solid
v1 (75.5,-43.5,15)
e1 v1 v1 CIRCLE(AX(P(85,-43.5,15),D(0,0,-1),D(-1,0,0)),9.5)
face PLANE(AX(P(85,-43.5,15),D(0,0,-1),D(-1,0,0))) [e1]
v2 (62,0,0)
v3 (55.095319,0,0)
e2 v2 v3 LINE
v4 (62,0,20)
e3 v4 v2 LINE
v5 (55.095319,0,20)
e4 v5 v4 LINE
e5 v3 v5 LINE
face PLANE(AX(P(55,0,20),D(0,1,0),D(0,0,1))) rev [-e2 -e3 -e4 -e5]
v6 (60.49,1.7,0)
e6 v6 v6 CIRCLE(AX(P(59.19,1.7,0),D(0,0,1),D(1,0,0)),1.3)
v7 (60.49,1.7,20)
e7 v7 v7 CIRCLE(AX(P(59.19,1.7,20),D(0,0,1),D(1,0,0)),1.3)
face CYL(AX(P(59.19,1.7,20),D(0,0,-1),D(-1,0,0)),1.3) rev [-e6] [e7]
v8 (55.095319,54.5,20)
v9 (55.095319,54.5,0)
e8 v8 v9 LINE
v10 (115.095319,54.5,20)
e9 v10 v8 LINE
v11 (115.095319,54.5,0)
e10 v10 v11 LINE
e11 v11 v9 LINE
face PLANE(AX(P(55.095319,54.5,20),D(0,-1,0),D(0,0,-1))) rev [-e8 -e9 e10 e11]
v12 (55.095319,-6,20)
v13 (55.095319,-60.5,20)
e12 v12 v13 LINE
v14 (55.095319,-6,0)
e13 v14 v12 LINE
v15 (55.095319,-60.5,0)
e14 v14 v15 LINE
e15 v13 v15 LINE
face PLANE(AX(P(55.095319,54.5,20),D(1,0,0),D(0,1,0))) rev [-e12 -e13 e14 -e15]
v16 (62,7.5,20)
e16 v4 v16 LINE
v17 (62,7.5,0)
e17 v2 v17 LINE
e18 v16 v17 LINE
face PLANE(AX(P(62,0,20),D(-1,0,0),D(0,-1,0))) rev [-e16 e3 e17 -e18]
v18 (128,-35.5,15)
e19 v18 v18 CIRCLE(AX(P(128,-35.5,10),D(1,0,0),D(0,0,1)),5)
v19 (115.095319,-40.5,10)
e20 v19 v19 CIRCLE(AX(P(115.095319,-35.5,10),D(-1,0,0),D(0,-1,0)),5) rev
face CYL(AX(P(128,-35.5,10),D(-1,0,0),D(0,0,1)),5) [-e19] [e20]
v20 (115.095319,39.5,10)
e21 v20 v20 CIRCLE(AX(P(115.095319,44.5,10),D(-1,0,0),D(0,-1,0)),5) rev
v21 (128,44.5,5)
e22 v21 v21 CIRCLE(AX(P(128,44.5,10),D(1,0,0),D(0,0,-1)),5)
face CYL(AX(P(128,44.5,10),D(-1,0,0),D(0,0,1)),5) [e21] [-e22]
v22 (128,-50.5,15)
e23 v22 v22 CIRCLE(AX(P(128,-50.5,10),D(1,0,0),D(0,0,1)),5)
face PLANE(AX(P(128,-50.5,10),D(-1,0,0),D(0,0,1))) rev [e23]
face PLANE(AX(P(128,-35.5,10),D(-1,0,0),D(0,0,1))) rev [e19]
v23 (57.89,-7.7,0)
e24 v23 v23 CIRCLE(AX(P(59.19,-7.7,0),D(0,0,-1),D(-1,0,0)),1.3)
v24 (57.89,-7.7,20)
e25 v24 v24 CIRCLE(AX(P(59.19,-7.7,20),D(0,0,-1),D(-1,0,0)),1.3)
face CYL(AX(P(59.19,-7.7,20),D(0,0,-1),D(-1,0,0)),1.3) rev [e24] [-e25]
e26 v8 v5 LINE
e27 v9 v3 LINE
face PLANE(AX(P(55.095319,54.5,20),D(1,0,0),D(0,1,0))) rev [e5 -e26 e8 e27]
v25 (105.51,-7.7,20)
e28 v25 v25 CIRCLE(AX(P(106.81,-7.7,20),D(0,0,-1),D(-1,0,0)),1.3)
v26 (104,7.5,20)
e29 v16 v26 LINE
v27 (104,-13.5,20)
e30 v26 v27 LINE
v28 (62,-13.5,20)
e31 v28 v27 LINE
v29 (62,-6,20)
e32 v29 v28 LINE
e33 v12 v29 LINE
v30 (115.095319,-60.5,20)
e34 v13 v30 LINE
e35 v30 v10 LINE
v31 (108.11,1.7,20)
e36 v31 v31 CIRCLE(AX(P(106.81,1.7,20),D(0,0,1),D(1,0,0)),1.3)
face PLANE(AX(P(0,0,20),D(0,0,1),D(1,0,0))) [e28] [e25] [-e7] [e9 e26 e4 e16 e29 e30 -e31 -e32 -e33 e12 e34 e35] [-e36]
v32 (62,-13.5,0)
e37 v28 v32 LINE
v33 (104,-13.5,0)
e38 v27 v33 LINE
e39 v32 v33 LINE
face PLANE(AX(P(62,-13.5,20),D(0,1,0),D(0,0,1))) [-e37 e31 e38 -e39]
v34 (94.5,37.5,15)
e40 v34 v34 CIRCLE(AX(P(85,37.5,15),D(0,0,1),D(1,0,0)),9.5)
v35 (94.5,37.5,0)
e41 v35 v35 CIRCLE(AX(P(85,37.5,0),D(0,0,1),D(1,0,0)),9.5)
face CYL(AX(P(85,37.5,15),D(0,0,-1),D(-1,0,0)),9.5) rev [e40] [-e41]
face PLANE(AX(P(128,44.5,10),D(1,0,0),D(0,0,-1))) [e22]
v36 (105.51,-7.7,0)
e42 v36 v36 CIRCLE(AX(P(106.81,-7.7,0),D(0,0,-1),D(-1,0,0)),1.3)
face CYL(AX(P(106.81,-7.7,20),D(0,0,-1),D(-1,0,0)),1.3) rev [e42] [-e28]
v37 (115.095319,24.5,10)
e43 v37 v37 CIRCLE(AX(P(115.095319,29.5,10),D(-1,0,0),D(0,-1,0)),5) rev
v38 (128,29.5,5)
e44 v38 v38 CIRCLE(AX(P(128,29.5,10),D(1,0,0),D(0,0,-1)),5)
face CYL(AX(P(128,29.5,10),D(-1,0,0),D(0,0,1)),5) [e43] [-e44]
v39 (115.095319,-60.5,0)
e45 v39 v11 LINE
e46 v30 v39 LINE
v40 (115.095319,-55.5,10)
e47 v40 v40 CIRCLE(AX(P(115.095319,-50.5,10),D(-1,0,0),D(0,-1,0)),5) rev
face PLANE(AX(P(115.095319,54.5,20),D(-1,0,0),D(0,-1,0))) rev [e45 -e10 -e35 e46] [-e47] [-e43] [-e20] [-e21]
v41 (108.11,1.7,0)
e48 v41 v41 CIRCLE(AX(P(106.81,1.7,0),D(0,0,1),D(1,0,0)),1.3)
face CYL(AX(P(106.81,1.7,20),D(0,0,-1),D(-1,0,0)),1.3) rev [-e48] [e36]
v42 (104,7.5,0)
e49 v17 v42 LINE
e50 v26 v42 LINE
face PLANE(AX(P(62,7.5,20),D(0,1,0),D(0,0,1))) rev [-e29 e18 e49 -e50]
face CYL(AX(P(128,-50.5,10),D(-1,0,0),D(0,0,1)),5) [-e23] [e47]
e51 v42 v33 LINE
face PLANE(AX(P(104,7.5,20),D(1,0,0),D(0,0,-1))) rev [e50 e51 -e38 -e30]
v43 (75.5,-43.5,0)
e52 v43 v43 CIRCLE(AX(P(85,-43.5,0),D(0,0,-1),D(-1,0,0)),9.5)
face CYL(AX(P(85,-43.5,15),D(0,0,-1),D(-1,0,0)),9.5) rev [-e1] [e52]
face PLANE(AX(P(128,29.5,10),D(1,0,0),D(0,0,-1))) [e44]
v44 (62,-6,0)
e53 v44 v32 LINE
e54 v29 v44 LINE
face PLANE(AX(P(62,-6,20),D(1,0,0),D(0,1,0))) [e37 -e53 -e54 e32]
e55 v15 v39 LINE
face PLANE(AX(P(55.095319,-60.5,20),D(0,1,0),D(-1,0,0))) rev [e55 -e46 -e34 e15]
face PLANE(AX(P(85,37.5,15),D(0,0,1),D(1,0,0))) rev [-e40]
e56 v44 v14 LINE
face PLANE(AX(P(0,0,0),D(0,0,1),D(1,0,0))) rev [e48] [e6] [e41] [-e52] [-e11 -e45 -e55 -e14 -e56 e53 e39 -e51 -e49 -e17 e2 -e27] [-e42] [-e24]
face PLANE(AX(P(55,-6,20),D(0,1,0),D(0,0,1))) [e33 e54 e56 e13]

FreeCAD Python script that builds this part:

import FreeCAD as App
import Part
import Sketcher

doc = App.newDocument("Part")
body = doc.addObject("PartDesign::Body", "Body")

# Sketch on XY plane
sketch1 = doc.addObject("Sketcher::SketchObject", "Sketch")
body.addObject(sketch1)
sketch1.AttachmentSupport = (doc.XY_Plane, [""])
sketch1.MapMode = "FlatFace"
sketch1.addGeometry([
    Part.LineSegment(App.Vector(55, 54, 0), App.Vector(55, -60, 0)),
    Part.LineSegment(App.Vector(55, -60, 0), App.Vector(115, -60, 0)),
    Part.LineSegment(App.Vector(115, -60, 0), App.Vector(115, 54, 0)),
    Part.LineSegment(App.Vector(115, 54, 0), App.Vector(55, 54, 0)),
], False)
sketch1.addConstraint([
    Sketcher.Constraint("Coincident", 0, 2, 1, 1),
    Sketcher.Constraint("Coincident", 1, 2, 2, 1),
    Sketcher.Constraint("Coincident", 2, 2, 3, 1),
    Sketcher.Constraint("Coincident", 3, 2, 0, 1),
    Sketcher.Constraint("Vertical", 0),
    Sketcher.Constraint("Horizontal", 1),
    Sketcher.Constraint("Vertical", 2),
    Sketcher.Constraint("Horizontal", 3),
    Sketcher.Constraint("DistanceX", 1, 1, 1, 2, 60.0),
    Sketcher.Constraint("DistanceY", 0, 2, 0, 1, 115.0),
    Sketcher.Constraint("DistanceY", 0, 2, -1, 1, 60.5),
    Sketcher.Constraint("DistanceX", -1, 1, 0, 2, 55.095319),
])
pad1 = doc.addObject("PartDesign::Pad", "Pad")
body.addObject(pad1)
pad1.Profile = sketch1
pad1.Length = 20

# Sketch on XY plane
sketch2 = doc.addObject("Sketcher::SketchObject", "Sketch001")
body.addObject(sketch2)
sketch2.AttachmentSupport = (doc.XY_Plane, [""])
sketch2.MapMode = "FlatFace"
sketch2.addGeometry([
    Part.Circle(App.Vector(59.2, 1.7, 0), App.Vector(0, 0, 1), 1.3),  # 0
    Part.Circle(App.Vector(106.8, 1.7, 0), App.Vector(0, 0, 1), 1.3),  # 1
    Part.Circle(App.Vector(106.8, -7.7, 0), App.Vector(0, 0, 1), 1.3),  # 2
    Part.Circle(App.Vector(59.2, -7.7, 0), App.Vector(0, 0, 1), 1.3),  # 3
    Part.LineSegment(App.Vector(55, 0, 0), App.Vector(55, -6, 0)),  # 4
    Part.LineSegment(App.Vector(55, -6, 0), App.Vector(62, -6, 0)),  # 5
    Part.LineSegment(App.Vector(62, -6, 0), App.Vector(62, -13.5, 0)),  # 6
    Part.LineSegment(App.Vector(62, -13.5, 0), App.Vector(104, -13.5, 0)),  # 7
    Part.LineSegment(App.Vector(104, -13.5, 0), App.Vector(104, 7.5, 0)),  # 8
    Part.LineSegment(App.Vector(104, 7.5, 0), App.Vector(62, 7.5, 0)),  # 9
    Part.LineSegment(App.Vector(62, 7.5, 0), App.Vector(62, 0, 0)),  # 10
    Part.LineSegment(App.Vector(62, 0, 0), App.Vector(55, 0, 0)),  # 11
], False)
sketch2.addConstraint([
    Sketcher.Constraint("Coincident", 4, 2, 5, 1),
    Sketcher.Constraint("Coincident", 5, 2, 6, 1),
    Sketcher.Constraint("Coincident", 6, 2, 7, 1),
    Sketcher.Constraint("Coincident", 7, 2, 8, 1),
    Sketcher.Constraint("Coincident", 8, 2, 9, 1),
    Sketcher.Constraint("Coincident", 9, 2, 10, 1),
    Sketcher.Constraint("Coincident", 10, 2, 11, 1),
    Sketcher.Constraint("Coincident", 11, 2, 4, 1),
    Sketcher.Constraint("Vertical", 4),
    Sketcher.Constraint("Horizontal", 5),
    Sketcher.Constraint("Vertical", 6),
    Sketcher.Constraint("Horizontal", 7),
    Sketcher.Constraint("Vertical", 8),
    Sketcher.Constraint("Horizontal", 9),
    Sketcher.Constraint("Vertical", 10),
    Sketcher.Constraint("Horizontal", 11),
    Sketcher.Constraint("Equal", 0, 1),
    Sketcher.Constraint("Equal", 1, 2),
    Sketcher.Constraint("Equal", 2, 3),
    Sketcher.Constraint("PointOnObject", 10, 2, -1),
    Sketcher.Constraint("Horizontal", 0, 3, 1, 3),
    Sketcher.Constraint("Horizontal", 2, 3, 3, 3),
    Sketcher.Constraint("Vertical", 1, 3, 2, 3),
    Sketcher.Constraint("Vertical", 0, 3, 3, 3),
    Sketcher.Constraint("Vertical", 6, 2, 9, 2),
    Sketcher.Constraint("Equal", 6, 10),
    Sketcher.Constraint("Diameter", 0, 2.6),
    Sketcher.Constraint("DistanceX", 5, 1, 5, 2, 7.0),
    Sketcher.Constraint("DistanceX", 7, 1, 7, 2, 42.0),
    Sketcher.Constraint("DistanceY", 4, 2, 4, 1, 6.0),
    Sketcher.Constraint("DistanceY", 8, 1, 8, 2, 21.0),
    Sketcher.Constraint("DistanceX", -1, 1, 4, 2, 55.0),
    Sketcher.Constraint("DistanceY", -1, 1, 0, 3, 1.7),
    Sketcher.Constraint("DistanceY", 2, 3, -1, 1, 7.7),
    Sketcher.Constraint("DistanceX", -1, 1, 0, 3, 59.19),
    Sketcher.Constraint("DistanceX", -1, 1, 1, 3, 106.81),
])
pocket1 = doc.addObject("PartDesign::Pocket", "Pocket")
body.addObject(pocket1)
pocket1.Profile = sketch2
pocket1.Length = 20
pocket1.Reversed = True

# Sketch on YZ plane
sketch3 = doc.addObject("Sketcher::SketchObject", "Sketch002")
body.addObject(sketch3)
sketch3.AttachmentSupport = (doc.YZ_Plane, [""])
sketch3.MapMode = "FlatFace"
sketch3.AttachmentOffset = App.Placement(App.Vector(0, 0, 115), App.Rotation())
sketch3.addGeometry([
    Part.Circle(App.Vector(44, 10, 0), App.Vector(0, 0, 1), 5),
    Part.Circle(App.Vector(30, 10, 0), App.Vector(0, 0, 1), 5),
    Part.Circle(App.Vector(-36, 10, 0), App.Vector(0, 0, 1), 5),
    Part.Circle(App.Vector(-50, 10, 0), App.Vector(0, 0, 1), 5),
], False)
sketch3.addConstraint([
    Sketcher.Constraint("Equal", 0, 1),
    Sketcher.Constraint("Equal", 1, 2),
    Sketcher.Constraint("Equal", 2, 3),
    Sketcher.Constraint("Horizontal", 0, 3, 1, 3),
    Sketcher.Constraint("Horizontal", 1, 3, 2, 3),
    Sketcher.Constraint("Horizontal", 2, 3, 3, 3),
    Sketcher.Constraint("Diameter", 0, 10.0),
    Sketcher.Constraint("DistanceY", -1, 1, 0, 3, 10.0),
    Sketcher.Constraint("DistanceX", 1, 3, 0, 3, 15.0),
    Sketcher.Constraint("DistanceX", 2, 3, 1, 3, 65.0),
    Sketcher.Constraint("DistanceX", 3, 3, 2, 3, 15.0),
    Sketcher.Constraint("DistanceX", -1, 1, 0, 3, 44.5),
])
pad2 = doc.addObject("PartDesign::Pad", "Pad001")
body.addObject(pad2)
pad2.Profile = sketch3
pad2.Length = 13

# Sketch on XY plane
sketch4 = doc.addObject("Sketcher::SketchObject", "Sketch003")
body.addObject(sketch4)
sketch4.AttachmentSupport = (doc.XY_Plane, [""])
sketch4.MapMode = "FlatFace"
sketch4.addGeometry(Part.Circle(App.Vector(85, 38, 0), App.Vector(0, 0, 1), 10), False)
sketch4.addConstraint([
    Sketcher.Constraint("Diameter", 0, 19.0),
    Sketcher.Constraint("DistanceX", -1, 1, 0, 3, 85.0),
    Sketcher.Constraint("DistanceY", -1, 1, 0, 3, 37.5),
])
pocket2 = doc.addObject("PartDesign::Pocket", "Pocket001")
body.addObject(pocket2)
pocket2.Profile = sketch4
pocket2.Length = 15
pocket2.Reversed = True

# Sketch on XY plane
sketch5 = doc.addObject("Sketcher::SketchObject", "Sketch004")
body.addObject(sketch5)
sketch5.AttachmentSupport = (doc.XY_Plane, [""])
sketch5.MapMode = "FlatFace"
sketch5.addGeometry(Part.Circle(App.Vector(85, -44, 0), App.Vector(0, 0, 1), 10), False)
sketch5.addConstraint([
    Sketcher.Constraint("Diameter", 0, 19.0),
    Sketcher.Constraint("DistanceX", -1, 1, 0, 3, 85.0),
    Sketcher.Constraint("DistanceY", 0, 3, -1, 1, 43.5),
])
pocket3 = doc.addObject("PartDesign::Pocket", "Pocket002")
body.addObject(pocket3)
pocket3.Profile = sketch5
pocket3.Length = 15
pocket3.Reversed = True

doc.recompute()
